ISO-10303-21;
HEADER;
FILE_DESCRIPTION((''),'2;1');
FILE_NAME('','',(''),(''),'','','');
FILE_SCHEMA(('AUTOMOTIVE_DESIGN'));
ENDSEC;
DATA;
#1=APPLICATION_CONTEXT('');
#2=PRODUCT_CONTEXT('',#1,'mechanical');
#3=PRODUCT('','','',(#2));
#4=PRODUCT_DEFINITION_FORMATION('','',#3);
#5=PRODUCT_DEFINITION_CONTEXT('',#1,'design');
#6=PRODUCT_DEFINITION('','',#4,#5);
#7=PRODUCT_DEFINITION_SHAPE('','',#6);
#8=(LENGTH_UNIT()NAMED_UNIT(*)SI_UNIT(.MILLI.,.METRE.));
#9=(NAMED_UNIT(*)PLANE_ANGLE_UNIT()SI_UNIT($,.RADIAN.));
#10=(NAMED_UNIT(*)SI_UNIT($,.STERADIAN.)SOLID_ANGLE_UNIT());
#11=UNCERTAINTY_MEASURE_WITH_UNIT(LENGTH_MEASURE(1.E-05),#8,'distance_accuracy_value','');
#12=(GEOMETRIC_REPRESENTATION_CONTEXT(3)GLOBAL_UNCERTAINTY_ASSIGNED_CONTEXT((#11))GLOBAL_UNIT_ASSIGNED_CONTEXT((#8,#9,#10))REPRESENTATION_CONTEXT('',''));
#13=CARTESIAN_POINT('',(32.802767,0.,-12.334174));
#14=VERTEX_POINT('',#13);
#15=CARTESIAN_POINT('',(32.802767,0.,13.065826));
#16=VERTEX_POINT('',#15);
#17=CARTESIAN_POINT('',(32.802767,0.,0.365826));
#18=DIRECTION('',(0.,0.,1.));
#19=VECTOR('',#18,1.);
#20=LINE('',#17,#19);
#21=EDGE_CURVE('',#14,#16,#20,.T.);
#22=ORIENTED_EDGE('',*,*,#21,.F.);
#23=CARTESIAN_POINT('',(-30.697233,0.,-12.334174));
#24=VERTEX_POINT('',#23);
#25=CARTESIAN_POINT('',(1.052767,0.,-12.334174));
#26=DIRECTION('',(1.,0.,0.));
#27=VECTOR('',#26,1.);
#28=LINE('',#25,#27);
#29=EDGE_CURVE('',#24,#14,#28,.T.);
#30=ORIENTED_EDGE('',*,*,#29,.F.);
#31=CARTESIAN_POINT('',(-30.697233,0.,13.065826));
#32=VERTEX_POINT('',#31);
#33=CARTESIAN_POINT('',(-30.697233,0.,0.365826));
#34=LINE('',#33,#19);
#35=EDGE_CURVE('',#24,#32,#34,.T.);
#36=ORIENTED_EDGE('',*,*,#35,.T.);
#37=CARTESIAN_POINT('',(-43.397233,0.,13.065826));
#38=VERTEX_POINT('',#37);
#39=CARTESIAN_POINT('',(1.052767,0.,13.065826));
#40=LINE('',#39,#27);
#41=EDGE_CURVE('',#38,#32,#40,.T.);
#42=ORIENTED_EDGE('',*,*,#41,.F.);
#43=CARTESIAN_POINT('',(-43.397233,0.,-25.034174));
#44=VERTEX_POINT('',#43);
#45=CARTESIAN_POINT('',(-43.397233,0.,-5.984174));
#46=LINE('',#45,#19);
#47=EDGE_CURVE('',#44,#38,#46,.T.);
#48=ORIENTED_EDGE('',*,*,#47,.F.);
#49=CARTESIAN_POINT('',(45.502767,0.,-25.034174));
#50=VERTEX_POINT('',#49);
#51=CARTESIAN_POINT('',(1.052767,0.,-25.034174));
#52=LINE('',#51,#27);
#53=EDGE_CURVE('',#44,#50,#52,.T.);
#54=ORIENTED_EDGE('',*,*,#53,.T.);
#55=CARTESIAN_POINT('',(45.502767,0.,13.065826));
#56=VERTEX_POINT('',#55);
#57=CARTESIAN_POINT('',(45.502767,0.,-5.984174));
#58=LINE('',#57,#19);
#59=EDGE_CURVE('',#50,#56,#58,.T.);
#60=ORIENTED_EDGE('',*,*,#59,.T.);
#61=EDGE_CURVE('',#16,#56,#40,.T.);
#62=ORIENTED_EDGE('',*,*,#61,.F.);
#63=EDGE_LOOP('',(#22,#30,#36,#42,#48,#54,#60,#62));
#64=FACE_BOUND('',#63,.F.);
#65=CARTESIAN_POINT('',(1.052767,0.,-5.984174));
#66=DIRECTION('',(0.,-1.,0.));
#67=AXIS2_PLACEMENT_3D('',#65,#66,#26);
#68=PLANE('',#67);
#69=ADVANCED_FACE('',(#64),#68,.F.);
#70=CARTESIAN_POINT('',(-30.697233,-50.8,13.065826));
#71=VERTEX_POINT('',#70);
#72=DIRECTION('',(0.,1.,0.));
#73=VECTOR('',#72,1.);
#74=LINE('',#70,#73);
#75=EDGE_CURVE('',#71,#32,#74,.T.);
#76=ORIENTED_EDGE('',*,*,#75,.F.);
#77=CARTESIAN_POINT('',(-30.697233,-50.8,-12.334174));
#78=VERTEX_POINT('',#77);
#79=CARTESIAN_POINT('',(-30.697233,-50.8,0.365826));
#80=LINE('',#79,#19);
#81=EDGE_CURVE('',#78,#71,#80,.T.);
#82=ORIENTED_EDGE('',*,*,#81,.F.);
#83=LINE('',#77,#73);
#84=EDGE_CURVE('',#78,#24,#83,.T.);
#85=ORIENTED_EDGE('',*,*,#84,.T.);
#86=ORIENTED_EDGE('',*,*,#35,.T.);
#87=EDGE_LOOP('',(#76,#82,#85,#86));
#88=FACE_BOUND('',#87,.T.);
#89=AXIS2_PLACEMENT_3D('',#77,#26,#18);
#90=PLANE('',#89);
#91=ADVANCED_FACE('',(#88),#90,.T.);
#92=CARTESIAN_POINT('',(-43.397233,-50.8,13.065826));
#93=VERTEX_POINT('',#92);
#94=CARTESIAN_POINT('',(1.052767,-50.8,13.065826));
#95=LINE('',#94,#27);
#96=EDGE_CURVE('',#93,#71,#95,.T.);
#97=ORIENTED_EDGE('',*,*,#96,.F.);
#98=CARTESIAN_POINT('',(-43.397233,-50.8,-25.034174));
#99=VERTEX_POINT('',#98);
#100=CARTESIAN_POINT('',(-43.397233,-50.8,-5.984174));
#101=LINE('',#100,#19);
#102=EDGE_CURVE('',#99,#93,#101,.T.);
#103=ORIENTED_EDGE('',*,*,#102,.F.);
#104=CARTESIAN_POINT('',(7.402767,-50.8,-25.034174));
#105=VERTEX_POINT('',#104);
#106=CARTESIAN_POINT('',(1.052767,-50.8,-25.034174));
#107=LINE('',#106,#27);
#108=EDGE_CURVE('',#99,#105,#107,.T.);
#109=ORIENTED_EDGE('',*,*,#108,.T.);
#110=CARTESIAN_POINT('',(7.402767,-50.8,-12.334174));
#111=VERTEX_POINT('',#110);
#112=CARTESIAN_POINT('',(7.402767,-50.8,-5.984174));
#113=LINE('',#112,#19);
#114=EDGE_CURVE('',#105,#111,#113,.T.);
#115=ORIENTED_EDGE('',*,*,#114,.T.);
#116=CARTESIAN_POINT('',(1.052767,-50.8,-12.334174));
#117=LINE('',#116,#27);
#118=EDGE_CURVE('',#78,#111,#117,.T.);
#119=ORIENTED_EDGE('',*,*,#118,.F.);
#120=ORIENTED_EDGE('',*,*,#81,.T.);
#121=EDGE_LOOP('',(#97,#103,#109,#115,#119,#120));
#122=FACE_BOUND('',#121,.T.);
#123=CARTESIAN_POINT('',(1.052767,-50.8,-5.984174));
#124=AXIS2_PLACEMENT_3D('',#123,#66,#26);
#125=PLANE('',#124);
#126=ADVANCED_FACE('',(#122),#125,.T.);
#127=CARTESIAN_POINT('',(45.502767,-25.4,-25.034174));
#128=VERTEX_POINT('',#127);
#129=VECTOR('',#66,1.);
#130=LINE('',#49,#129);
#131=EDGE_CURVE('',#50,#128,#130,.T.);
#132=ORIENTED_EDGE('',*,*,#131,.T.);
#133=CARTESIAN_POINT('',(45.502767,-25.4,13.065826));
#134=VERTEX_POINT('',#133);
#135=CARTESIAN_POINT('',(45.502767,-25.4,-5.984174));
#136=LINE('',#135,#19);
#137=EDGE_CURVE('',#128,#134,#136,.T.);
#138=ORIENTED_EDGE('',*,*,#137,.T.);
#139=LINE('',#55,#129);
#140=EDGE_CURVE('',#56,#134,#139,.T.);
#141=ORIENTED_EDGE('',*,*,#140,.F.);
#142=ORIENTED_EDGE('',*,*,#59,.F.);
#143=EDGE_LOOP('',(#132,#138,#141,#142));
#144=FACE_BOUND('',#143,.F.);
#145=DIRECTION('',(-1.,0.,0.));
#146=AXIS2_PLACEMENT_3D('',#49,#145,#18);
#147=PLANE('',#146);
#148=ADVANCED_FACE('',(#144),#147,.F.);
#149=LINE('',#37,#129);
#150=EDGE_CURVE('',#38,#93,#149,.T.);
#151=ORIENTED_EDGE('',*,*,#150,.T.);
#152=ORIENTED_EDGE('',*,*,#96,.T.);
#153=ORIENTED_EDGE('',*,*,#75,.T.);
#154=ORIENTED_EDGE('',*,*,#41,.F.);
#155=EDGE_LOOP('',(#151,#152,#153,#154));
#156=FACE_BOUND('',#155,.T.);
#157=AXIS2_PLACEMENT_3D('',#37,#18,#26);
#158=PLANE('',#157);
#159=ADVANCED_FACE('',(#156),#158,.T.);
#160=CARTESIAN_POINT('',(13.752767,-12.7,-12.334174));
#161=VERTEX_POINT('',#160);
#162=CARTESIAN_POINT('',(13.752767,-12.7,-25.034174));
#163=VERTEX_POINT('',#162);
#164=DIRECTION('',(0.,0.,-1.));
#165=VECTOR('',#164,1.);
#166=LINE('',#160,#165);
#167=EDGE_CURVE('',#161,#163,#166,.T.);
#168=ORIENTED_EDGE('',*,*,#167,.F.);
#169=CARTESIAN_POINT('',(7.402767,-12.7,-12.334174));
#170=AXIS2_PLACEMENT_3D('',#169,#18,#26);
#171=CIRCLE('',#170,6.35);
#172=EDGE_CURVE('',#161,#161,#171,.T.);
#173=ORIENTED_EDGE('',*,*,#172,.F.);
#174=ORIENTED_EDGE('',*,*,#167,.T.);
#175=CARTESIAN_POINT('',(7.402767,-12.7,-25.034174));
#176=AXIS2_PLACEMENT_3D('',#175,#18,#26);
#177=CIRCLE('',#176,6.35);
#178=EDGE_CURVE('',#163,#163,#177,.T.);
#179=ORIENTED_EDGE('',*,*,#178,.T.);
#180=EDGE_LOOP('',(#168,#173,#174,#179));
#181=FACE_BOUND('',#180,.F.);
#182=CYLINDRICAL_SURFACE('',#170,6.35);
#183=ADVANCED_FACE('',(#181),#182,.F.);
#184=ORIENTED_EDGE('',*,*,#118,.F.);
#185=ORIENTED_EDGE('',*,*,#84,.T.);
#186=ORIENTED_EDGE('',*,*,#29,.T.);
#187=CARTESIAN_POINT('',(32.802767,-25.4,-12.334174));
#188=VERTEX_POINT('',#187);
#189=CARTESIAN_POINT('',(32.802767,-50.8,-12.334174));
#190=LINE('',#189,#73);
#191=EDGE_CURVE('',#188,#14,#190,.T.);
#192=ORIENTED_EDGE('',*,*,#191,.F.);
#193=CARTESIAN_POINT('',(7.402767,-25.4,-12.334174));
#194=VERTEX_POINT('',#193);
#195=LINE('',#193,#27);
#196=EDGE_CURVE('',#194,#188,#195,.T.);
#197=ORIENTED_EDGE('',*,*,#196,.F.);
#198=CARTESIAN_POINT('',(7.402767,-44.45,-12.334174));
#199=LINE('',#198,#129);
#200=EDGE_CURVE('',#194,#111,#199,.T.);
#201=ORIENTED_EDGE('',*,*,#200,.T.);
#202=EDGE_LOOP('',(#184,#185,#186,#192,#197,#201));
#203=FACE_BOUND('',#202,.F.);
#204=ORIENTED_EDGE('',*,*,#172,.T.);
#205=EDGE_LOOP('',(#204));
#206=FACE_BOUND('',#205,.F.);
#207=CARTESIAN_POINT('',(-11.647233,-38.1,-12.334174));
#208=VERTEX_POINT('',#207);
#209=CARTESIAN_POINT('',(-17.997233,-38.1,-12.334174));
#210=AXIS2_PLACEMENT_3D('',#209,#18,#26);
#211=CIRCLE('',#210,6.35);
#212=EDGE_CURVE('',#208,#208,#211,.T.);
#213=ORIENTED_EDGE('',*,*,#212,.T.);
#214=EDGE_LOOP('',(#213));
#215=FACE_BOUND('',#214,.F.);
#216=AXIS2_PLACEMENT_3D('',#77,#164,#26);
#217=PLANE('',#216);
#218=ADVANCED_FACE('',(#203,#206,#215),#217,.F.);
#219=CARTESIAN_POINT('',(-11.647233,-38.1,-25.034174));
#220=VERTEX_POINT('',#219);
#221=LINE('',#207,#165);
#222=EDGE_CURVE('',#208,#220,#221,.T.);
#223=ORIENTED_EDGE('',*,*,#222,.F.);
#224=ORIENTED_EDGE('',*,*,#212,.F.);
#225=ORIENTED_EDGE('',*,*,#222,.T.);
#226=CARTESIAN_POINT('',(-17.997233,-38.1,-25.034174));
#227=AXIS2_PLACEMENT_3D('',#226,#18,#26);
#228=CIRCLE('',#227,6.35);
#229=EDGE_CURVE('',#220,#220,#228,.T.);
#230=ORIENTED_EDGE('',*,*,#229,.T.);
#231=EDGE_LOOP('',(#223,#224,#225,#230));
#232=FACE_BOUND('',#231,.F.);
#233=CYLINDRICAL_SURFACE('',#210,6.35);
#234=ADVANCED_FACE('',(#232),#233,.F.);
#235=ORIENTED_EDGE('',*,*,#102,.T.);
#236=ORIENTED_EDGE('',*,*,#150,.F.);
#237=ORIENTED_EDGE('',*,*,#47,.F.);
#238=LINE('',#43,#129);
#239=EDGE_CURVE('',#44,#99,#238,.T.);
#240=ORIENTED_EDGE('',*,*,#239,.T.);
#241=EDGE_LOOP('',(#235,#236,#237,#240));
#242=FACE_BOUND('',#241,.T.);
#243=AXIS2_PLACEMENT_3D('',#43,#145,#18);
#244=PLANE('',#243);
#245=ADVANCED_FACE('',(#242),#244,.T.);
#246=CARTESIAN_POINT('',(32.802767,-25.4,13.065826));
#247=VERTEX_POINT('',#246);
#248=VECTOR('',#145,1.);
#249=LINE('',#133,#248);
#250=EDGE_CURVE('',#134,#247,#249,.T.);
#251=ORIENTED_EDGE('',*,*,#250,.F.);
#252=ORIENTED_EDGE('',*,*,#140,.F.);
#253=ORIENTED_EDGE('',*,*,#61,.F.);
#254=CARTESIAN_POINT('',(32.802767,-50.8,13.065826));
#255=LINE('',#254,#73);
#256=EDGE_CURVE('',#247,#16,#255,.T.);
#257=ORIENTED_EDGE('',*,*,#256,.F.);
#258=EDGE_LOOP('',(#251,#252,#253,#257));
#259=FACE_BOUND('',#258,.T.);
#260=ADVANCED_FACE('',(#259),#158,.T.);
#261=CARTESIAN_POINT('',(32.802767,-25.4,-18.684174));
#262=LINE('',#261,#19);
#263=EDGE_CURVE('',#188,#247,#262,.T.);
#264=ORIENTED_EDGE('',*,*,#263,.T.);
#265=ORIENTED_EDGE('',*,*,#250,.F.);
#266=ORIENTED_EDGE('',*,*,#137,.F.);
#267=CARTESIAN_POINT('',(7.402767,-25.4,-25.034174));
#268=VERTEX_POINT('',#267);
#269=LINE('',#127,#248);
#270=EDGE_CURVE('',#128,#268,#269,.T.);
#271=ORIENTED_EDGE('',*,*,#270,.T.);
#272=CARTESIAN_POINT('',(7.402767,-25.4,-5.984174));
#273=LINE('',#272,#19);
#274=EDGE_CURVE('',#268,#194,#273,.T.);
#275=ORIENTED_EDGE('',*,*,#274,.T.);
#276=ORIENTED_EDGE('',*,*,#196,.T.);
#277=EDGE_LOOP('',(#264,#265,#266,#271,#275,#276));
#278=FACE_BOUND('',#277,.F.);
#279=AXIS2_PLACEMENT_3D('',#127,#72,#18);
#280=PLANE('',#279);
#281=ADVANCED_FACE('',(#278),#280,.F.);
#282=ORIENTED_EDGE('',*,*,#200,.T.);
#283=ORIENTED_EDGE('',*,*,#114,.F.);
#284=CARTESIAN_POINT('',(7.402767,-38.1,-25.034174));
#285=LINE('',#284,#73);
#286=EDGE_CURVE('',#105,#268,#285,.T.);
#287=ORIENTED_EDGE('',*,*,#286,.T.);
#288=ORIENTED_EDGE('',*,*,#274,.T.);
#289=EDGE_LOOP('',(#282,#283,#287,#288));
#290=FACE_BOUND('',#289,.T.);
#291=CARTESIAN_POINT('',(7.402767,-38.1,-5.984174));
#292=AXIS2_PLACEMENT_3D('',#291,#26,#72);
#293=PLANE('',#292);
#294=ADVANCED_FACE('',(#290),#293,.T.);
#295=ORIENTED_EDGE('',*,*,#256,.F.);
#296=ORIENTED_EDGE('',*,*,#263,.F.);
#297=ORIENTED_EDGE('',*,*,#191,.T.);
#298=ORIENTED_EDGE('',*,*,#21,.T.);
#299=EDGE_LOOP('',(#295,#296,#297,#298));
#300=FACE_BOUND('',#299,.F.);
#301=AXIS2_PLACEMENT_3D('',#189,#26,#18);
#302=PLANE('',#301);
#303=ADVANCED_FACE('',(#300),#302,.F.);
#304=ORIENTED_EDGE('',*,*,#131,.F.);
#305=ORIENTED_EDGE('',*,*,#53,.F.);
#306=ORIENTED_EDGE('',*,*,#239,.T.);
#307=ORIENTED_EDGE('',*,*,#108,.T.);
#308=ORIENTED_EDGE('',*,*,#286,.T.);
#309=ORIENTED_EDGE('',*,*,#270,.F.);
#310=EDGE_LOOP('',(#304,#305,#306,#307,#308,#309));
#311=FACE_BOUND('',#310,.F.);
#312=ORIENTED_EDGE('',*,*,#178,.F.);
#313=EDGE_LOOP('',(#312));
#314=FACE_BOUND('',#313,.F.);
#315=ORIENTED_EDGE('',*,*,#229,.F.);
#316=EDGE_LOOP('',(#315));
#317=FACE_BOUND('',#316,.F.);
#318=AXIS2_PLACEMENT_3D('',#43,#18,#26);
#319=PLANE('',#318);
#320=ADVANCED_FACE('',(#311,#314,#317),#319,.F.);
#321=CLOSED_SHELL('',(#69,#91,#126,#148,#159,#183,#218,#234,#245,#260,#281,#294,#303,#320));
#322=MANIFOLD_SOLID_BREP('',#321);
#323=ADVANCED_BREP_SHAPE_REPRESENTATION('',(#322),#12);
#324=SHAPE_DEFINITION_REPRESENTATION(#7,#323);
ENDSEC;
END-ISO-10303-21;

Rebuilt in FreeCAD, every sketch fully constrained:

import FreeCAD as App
import Part
import Sketcher
Q = App.Units.Quantity

doc = App.newDocument("Part")
params = doc.addObject("Spreadsheet::Sheet", "Params")
for row, (alias, value) in enumerate([
    ("sketch1_width", "3.5 in"),
    ("sketch1_height", "1.5 in"),
    ("pad1_length", "2 in"),
    ("sketch2_height", "1 in"),
    ("sketch2_width", "2.5 in"),
    ("pocket1_length", "2 in"),
    ("sketch3_width", "1 in"),
    ("sketch3_height", "1.5 in"),
    ("pocket2_length", "1.5 in"),
    ("sketch4_diameter", "0.5 in"),
    ("pocket3_length", "1 in"),
    ("sketch5_diameter", "0.5 in"),
    ("pocket4_length", "1 in"),
], start=1):
    params.set(f"A{row}", alias)
    params.set(f"B{row}", "=" + value)
    params.setAlias(f"B{row}", alias)

body = doc.addObject("PartDesign::Body", "Body")

# Sketch on XZ plane
sketch1 = body.newObject("Sketcher::SketchObject", "Sketch")
sketch1.AttachmentSupport = (doc.getObject("XZ_Plane"), [""])
sketch1.MapMode = "FlatFace"
sketch1.addGeometry(Part.LineSegment(App.Vector(-43.397233, 13.065826, 0), App.Vector(-43.397233, -25.034174, 0)), False)
sketch1.addGeometry(Part.LineSegment(App.Vector(-43.397233, -25.034174, 0), App.Vector(45.502767, -25.034174, 0)), False)
sketch1.addGeometry(Part.LineSegment(App.Vector(45.502767, -25.034174, 0), App.Vector(45.502767, 13.065826, 0)), False)
sketch1.addGeometry(Part.LineSegment(App.Vector(45.502767, 13.065826, 0), App.Vector(-43.397233, 13.065826, 0)), False)
sketch1.addConstraint(Sketcher.Constraint("Coincident", 0, 2, 1, 1))
sketch1.addConstraint(Sketcher.Constraint("Coincident", 1, 2, 2, 1))
sketch1.addConstraint(Sketcher.Constraint("Coincident", 2, 2, 3, 1))
sketch1.addConstraint(Sketcher.Constraint("Coincident", 3, 2, 0, 1))
sketch1.addConstraint(Sketcher.Constraint("Vertical", 0))
sketch1.addConstraint(Sketcher.Constraint("Horizontal", 1))
sketch1.addConstraint(Sketcher.Constraint("Vertical", 2))
sketch1.addConstraint(Sketcher.Constraint("Horizontal", 3))
sketch1.addConstraint(Sketcher.Constraint("DistanceX", 1, 1, 1, 2, Q("3.5 in")))
sketch1.addConstraint(Sketcher.Constraint("DistanceY", 0, 2, 0, 1, Q("1.5 in")))
sketch1.addConstraint(Sketcher.Constraint("DistanceX", 0, 2, -1, 1, 43.397233))
sketch1.addConstraint(Sketcher.Constraint("DistanceY", 0, 2, -1, 1, 25.034174))
sketch1.setExpression("Constraints[8]", "Params.sketch1_width")
sketch1.setExpression("Constraints[9]", "Params.sketch1_height")
pad1 = body.newObject("PartDesign::Pad", "Pad")
pad1.Profile = sketch1
pad1.setExpression("Length", "Params.pad1_length")

# Sketch on XZ plane
sketch2 = body.newObject("Sketcher::SketchObject", "Sketch001")
sketch2.AttachmentSupport = (doc.getObject("XZ_Plane"), [""])
sketch2.MapMode = "FlatFace"
sketch2.AttachmentOffset = App.Placement(App.Vector(0, 0, 2 * 25.4), App.Rotation())
sketch2.addGeometry(Part.LineSegment(App.Vector(-30.697233, 13.065826, 0), App.Vector(-30.697233, -12.334174, 0)), False)
sketch2.addGeometry(Part.LineSegment(App.Vector(-30.697233, -12.334174, 0), App.Vector(32.802767, -12.334174, 0)), False)
sketch2.addGeometry(Part.LineSegment(App.Vector(32.802767, -12.334174, 0), App.Vector(32.802767, 13.065826, 0)), False)
sketch2.addGeometry(Part.LineSegment(App.Vector(32.802767, 13.065826, 0), App.Vector(-30.697233, 13.065826, 0)), False)
sketch2.addConstraint(Sketcher.Constraint("Coincident", 0, 2, 1, 1))
sketch2.addConstraint(Sketcher.Constraint("Coincident", 1, 2, 2, 1))
sketch2.addConstraint(Sketcher.Constraint("Coincident", 2, 2, 3, 1))
sketch2.addConstraint(Sketcher.Constraint("Coincident", 3, 2, 0, 1))
sketch2.addConstraint(Sketcher.Constraint("Vertical", 0))
sketch2.addConstraint(Sketcher.Constraint("Horizontal", 1))
sketch2.addConstraint(Sketcher.Constraint("Vertical", 2))
sketch2.addConstraint(Sketcher.Constraint("Horizontal", 3))
sketch2.addConstraint(Sketcher.Constraint("DistanceY", 0, 2, 0, 1, Q("1 in")))
sketch2.addConstraint(Sketcher.Constraint("DistanceX", 1, 1, 1, 2, Q("2.5 in")))
sketch2.addConstraint(Sketcher.Constraint("DistanceX", 0, 2, -1, 1, 30.697233))
sketch2.addConstraint(Sketcher.Constraint("DistanceY", 0, 2, -1, 1, 12.334174))
sketch2.setExpression("Constraints[8]", "Params.sketch2_height")
sketch2.setExpression("Constraints[9]", "Params.sketch2_width")
pocket1 = body.newObject("PartDesign::Pocket", "Pocket")
pocket1.Profile = sketch2
pocket1.setExpression("Length", "Params.pocket1_length")

# Sketch on YZ plane
sketch3 = body.newObject("Sketcher::SketchObject", "Sketch002")
sketch3.AttachmentSupport = (doc.getObject("YZ_Plane"), [""])
sketch3.MapMode = "FlatFace"
sketch3.AttachmentOffset = App.Placement(App.Vector(0, 0, 45.502767), App.Rotation())
sketch3.addGeometry(Part.LineSegment(App.Vector(-50.8, 13.065826, 0), App.Vector(-50.8, -25.034174, 0)), False)
sketch3.addGeometry(Part.LineSegment(App.Vector(-50.8, -25.034174, 0), App.Vector(-25.4, -25.034174, 0)), False)
sketch3.addGeometry(Part.LineSegment(App.Vector(-25.4, -25.034174, 0), App.Vector(-25.4, 13.065826, 0)), False)
sketch3.addGeometry(Part.LineSegment(App.Vector(-25.4, 13.065826, 0), App.Vector(-50.8, 13.065826, 0)), False)
sketch3.addConstraint(Sketcher.Constraint("Coincident", 0, 2, 1, 1))
sketch3.addConstraint(Sketcher.Constraint("Coincident", 1, 2, 2, 1))
sketch3.addConstraint(Sketcher.Constraint("Coincident", 2, 2, 3, 1))
sketch3.addConstraint(Sketcher.Constraint("Coincident", 3, 2, 0, 1))
sketch3.addConstraint(Sketcher.Constraint("Vertical", 0))
sketch3.addConstraint(Sketcher.Constraint("Horizontal", 1))
sketch3.addConstraint(Sketcher.Constraint("Vertical", 2))
sketch3.addConstraint(Sketcher.Constraint("Horizontal", 3))
sketch3.addConstraint(Sketcher.Constraint("DistanceX", 1, 1, 1, 2, Q("1 in")))
sketch3.addConstraint(Sketcher.Constraint("DistanceY", 0, 2, 0, 1, Q("1.5 in")))
sketch3.addConstraint(Sketcher.Constraint("DistanceX", 0, 2, -1, 1, Q("2 in")))
sketch3.addConstraint(Sketcher.Constraint("DistanceY", 0, 2, -1, 1, 25.034174))
sketch3.setExpression("Constraints[8]", "Params.sketch3_width")
sketch3.setExpression("Constraints[9]", "Params.sketch3_height")
pocket2 = body.newObject("PartDesign::Pocket", "Pocket001")
pocket2.Profile = sketch3
pocket2.setExpression("Length", "Params.pocket2_length")

# Sketch on XY plane
sketch4 = body.newObject("Sketcher::SketchObject", "Sketch003")
sketch4.AttachmentSupport = (doc.getObject("XY_Plane"), [""])
sketch4.MapMode = "FlatFace"
sketch4.AttachmentOffset = App.Placement(App.Vector(0, 0, -12.334174), App.Rotation())
sketch4.addGeometry(Part.Circle(App.Vector(-17.997233, -38.1, 0), App.Vector(0, 0, 1), 6.35), False)
sketch4.addConstraint(Sketcher.Constraint("Diameter", 0, Q("0.5 in")))
sketch4.addConstraint(Sketcher.Constraint("DistanceY", 0, 3, -1, 1, Q("1.5 in")))
sketch4.addConstraint(Sketcher.Constraint("DistanceX", 0, 3, -1, 1, 17.997233))
sketch4.setExpression("Constraints[0]", "Params.sketch4_diameter")
pocket3 = body.newObject("PartDesign::Pocket", "Pocket002")
pocket3.Profile = sketch4
pocket3.setExpression("Length", "Params.pocket3_length")

# Sketch on XY plane
sketch5 = body.newObject("Sketcher::SketchObject", "Sketch004")
sketch5.AttachmentSupport = (doc.getObject("XY_Plane"), [""])
sketch5.MapMode = "FlatFace"
sketch5.AttachmentOffset = App.Placement(App.Vector(0, 0, -12.334174), App.Rotation())
sketch5.addGeometry(Part.Circle(App.Vector(7.402767, -12.7, 0), App.Vector(0, 0, 1), 6.35), False)
sketch5.addConstraint(Sketcher.Constraint("Diameter", 0, Q("0.5 in")))
sketch5.addConstraint(Sketcher.Constraint("DistanceY", 0, 3, -1, 1, Q("0.5 in")))
sketch5.addConstraint(Sketcher.Constraint("DistanceX", -1, 1, 0, 3, 7.402767))
sketch5.setExpression("Constraints[0]", "Params.sketch5_diameter")
pocket4 = body.newObject("PartDesign::Pocket", "Pocket003")
pocket4.Profile = sketch5
pocket4.setExpression("Length", "Params.pocket4_length")

doc.recompute()
